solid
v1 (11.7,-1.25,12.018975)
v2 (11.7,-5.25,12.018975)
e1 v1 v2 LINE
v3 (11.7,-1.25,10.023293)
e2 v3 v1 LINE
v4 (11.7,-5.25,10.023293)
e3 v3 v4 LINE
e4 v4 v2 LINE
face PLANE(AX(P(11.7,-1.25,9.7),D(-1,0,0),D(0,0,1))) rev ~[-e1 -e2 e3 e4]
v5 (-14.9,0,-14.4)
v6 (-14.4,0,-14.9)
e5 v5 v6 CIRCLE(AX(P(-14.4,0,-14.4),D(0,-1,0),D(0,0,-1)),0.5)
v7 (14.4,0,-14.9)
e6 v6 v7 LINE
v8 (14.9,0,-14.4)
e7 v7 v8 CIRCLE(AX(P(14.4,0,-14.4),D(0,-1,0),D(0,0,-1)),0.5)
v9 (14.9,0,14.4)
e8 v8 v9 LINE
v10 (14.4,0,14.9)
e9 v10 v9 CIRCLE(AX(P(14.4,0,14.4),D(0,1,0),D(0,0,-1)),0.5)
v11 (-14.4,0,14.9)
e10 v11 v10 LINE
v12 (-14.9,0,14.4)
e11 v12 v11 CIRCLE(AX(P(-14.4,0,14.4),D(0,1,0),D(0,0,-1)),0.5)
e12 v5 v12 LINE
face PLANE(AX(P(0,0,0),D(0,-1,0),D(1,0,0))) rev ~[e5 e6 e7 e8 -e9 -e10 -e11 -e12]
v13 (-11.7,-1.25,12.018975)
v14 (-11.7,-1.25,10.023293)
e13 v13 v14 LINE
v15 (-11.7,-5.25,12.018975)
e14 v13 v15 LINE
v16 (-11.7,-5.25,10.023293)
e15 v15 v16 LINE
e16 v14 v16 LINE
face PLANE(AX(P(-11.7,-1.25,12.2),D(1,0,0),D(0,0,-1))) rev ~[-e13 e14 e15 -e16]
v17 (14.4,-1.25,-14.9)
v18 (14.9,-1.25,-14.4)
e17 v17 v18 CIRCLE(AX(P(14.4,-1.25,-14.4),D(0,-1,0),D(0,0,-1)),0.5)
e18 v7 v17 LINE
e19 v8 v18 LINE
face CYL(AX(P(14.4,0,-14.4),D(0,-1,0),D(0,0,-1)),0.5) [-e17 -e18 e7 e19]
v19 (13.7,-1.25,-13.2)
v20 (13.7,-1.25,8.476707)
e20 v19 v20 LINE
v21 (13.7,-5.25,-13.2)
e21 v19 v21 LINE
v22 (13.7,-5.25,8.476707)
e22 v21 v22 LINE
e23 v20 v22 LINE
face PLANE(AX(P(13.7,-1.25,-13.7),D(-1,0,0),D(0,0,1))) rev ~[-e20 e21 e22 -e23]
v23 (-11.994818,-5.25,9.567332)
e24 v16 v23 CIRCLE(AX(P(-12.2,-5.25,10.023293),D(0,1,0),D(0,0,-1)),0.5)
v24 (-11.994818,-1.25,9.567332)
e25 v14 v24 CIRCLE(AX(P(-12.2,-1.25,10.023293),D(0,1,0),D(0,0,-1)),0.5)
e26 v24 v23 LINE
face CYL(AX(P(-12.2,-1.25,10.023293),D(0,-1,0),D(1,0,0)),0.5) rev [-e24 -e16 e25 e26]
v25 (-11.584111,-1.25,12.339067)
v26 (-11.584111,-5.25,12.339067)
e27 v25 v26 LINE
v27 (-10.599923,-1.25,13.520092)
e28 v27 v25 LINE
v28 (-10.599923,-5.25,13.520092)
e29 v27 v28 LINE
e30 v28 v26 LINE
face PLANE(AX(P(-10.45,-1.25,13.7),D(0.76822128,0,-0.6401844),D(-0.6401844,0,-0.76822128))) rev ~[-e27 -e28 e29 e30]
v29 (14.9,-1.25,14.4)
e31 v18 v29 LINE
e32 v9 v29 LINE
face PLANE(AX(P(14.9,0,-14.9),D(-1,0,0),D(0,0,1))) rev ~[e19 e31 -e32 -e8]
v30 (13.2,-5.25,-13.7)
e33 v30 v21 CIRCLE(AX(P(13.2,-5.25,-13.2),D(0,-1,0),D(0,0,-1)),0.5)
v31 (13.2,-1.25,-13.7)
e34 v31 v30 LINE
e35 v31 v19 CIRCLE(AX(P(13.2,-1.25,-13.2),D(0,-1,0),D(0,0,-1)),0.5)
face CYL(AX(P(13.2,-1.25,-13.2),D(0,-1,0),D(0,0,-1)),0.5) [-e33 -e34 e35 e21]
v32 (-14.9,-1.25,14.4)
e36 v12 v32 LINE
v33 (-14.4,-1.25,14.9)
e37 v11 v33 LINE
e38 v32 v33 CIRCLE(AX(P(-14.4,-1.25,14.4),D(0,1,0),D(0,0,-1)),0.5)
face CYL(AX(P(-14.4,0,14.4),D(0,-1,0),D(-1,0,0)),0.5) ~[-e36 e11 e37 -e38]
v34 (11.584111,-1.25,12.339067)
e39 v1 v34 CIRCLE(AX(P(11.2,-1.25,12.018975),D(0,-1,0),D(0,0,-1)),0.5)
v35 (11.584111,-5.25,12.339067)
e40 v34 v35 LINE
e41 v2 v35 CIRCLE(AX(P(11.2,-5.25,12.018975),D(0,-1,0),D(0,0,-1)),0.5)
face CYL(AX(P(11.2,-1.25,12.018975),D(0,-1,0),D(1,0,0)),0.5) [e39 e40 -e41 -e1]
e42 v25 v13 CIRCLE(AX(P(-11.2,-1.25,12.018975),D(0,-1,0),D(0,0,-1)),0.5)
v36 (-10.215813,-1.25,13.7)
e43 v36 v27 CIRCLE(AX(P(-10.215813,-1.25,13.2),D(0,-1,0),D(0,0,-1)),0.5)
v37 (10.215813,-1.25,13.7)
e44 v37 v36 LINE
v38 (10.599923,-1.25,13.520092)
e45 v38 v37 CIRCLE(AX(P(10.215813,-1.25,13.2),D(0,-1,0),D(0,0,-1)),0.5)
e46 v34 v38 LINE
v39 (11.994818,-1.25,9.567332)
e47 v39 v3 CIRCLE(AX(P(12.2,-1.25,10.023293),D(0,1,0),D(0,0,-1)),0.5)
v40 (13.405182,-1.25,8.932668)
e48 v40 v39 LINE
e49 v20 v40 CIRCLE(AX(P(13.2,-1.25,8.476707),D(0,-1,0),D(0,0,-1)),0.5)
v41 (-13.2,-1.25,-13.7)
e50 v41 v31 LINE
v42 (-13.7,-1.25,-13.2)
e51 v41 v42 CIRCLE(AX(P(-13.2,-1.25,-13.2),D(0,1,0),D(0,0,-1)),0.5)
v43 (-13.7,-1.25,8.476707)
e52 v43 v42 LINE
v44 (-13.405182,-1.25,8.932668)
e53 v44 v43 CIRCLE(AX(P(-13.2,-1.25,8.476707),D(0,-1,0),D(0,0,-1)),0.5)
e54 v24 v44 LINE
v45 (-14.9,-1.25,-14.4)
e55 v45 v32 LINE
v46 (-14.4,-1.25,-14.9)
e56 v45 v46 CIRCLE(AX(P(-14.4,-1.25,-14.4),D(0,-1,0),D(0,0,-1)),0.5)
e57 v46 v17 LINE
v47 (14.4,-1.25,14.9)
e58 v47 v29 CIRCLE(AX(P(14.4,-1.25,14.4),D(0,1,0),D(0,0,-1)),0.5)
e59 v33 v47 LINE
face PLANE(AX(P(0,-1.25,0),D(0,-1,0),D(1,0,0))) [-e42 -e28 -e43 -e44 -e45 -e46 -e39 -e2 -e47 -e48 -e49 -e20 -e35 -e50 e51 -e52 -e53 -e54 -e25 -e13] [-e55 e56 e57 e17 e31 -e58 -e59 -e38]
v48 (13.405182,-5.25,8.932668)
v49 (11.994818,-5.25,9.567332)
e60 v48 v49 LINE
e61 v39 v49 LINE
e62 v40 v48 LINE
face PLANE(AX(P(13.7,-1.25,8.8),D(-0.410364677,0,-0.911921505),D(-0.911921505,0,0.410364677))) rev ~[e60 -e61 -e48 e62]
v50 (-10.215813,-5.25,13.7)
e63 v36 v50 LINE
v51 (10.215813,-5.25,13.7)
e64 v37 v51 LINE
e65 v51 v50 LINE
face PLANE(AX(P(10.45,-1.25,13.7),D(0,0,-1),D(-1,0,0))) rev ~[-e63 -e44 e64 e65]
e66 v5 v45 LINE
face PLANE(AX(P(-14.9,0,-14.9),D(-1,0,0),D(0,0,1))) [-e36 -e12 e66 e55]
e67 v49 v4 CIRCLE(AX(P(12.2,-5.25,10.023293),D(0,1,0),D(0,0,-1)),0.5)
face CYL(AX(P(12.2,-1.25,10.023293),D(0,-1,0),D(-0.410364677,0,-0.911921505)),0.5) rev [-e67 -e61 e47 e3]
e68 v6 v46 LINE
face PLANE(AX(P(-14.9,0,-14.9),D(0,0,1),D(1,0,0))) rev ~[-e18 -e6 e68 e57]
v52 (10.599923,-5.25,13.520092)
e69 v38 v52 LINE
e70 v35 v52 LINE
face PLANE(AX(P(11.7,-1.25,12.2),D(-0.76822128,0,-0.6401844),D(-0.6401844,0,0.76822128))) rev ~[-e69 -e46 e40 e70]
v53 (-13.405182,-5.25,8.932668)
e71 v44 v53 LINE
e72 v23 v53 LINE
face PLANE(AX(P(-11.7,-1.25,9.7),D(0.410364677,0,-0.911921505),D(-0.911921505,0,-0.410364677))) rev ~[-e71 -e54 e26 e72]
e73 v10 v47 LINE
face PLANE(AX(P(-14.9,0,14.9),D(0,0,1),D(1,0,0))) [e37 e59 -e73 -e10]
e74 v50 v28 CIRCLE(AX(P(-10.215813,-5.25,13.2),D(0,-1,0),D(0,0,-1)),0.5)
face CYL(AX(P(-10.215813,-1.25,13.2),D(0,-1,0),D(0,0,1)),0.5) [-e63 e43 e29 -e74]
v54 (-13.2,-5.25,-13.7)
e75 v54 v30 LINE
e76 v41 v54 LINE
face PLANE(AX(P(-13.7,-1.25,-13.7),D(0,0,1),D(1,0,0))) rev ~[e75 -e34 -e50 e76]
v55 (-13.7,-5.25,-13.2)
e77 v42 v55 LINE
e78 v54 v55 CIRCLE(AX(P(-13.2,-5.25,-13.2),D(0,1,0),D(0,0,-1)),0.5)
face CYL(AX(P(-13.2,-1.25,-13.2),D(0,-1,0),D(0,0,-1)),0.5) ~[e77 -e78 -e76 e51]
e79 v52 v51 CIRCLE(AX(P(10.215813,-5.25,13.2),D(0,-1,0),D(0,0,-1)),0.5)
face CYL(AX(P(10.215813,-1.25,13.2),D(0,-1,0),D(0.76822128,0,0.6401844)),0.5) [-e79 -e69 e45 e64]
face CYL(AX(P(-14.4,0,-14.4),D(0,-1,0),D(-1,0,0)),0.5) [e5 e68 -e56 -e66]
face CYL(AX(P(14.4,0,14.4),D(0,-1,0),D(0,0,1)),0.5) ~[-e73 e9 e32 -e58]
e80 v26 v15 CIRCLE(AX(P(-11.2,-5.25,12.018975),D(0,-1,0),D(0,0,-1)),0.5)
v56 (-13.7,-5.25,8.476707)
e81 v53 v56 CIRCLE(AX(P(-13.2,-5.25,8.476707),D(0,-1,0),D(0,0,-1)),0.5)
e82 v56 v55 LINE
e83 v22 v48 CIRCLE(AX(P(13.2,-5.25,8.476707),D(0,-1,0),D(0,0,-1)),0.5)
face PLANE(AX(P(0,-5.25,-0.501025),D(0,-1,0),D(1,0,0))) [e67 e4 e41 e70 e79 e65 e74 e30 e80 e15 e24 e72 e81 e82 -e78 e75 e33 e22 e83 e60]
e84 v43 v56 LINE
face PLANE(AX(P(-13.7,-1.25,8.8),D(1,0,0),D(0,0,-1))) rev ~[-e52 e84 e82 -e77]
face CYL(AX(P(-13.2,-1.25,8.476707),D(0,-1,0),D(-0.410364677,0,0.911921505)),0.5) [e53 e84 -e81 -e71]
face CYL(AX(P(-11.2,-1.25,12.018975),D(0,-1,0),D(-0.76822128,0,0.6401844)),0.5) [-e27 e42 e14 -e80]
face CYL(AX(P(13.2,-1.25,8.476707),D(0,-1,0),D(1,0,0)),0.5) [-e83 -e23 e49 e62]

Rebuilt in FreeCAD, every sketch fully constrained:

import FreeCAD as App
import Part
import Sketcher
Q = App.Units.Quantity


def edges_at(feature, points):
    """Names of the edges that pass closest to the given points."""
    edges = feature.Shape.Edges
    near = lambda p: min(range(len(edges)), key=lambda i: edges[i].distToShape(Part.Vertex(*p))[0])
    return sorted({f"Edge{near(p) + 1}" for p in points})


def add_polygon(sketch, points):
    """Adds a closed chain of lines whose ends are joined by coincident constraints."""
    first, n = sketch.GeometryCount, len(points)
    for a, b in zip(points, points[1:] + points[:1]):
        sketch.addGeometry(Part.LineSegment(App.Vector(*a, 0), App.Vector(*b, 0)), False)
    for i in range(n):
        sketch.addConstraint(Sketcher.Constraint("Coincident", first + i, 2, first + (i + 1) % n, 1))

doc = App.newDocument("Part")
body = doc.addObject("PartDesign::Body", "Body")

sketch1 = body.newObject("Sketcher::SketchObject", "Sketch")
sketch1.AttachmentSupport = (doc.getObject("XZ_Plane"), [""])
sketch1.MapMode = "FlatFace"
add_polygon(sketch1, [(-15, 15), (-15, -15), (15, -15), (15, 15)])
sketch1.addConstraint(Sketcher.Constraint("Vertical", 0))
sketch1.addConstraint(Sketcher.Constraint("Horizontal", 1))
sketch1.addConstraint(Sketcher.Constraint("Vertical", 2))
sketch1.addConstraint(Sketcher.Constraint("Horizontal", 3))
sketch1.addConstraint(Sketcher.Constraint("Symmetric", 0, 2, 2, 2, -1, 1))
sketch1.addConstraint(Sketcher.Constraint("Equal", 3, 0))
sketch1.addConstraint(Sketcher.Constraint("DistanceX", 1, 1, 1, 2, Q("29.8 mm")))
pad1 = body.newObject("PartDesign::Pad", "Pad")
pad1.Profile = sketch1
pad1.Length = 1.25

sketch2 = body.newObject("Sketcher::SketchObject", "Sketch001")
sketch2.AttachmentSupport = (doc.getObject("XZ_Plane"), [""])
sketch2.MapMode = "FlatFace"
sketch2.AttachmentOffset = App.Placement(App.Vector(0, 0, 1.25), App.Rotation())
add_polygon(sketch2, [(-13.7, -13.7), (13.7, -13.7), (13.7, 8.8), (11.7, 9.7), (11.7, 12.2), (10.4, 13.7), (-10.4, 13.7), (-11.7, 12.2), (-11.7, 9.7), (-13.7, 8.8)])
sketch2.addConstraint(Sketcher.Constraint("Horizontal", 0))
sketch2.addConstraint(Sketcher.Constraint("Vertical", 1))
sketch2.addConstraint(Sketcher.Constraint("Vertical", 3))
sketch2.addConstraint(Sketcher.Constraint("Horizontal", 5))
sketch2.addConstraint(Sketcher.Constraint("Vertical", 7))
sketch2.addConstraint(Sketcher.Constraint("Vertical", 9))
sketch2.addConstraint(Sketcher.Constraint("Symmetric", 3, 2, 6, 2, -2))
sketch2.addConstraint(Sketcher.Constraint("Symmetric", 1, 2, 8, 2, -2))
sketch2.addConstraint(Sketcher.Constraint("Horizontal", 2, 2, 7, 2))
sketch2.addConstraint(Sketcher.Constraint("Equal", 4, 6))
sketch2.addConstraint(Sketcher.Constraint("DistanceX", 0, 1, 0, 2, Q("27.4 mm")))
sketch2.addConstraint(Sketcher.Constraint("DistanceX", 5, 2, 5, 1, Q("20.9 mm")))
sketch2.addConstraint(Sketcher.Constraint("DistanceY", 1, 1, 1, 2, Q("22.5 mm")))
sketch2.addConstraint(Sketcher.Constraint("DistanceY", 3, 1, 3, 2, Q("2.5 mm")))
sketch2.addConstraint(Sketcher.Constraint("DistanceX", 2, 2, 1, 2, Q("2 mm")))
sketch2.addConstraint(Sketcher.Constraint("DistanceY", 2, 2, 4, 2, Q("4 mm")))
sketch2.addConstraint(Sketcher.Constraint("DistanceY", 0, 2, -1, 1, Q("13.7 mm")))
sketch2.addConstraint(Sketcher.Constraint("DistanceY", -1, 1, 2, 2, Q("9.7 mm")))
pad2 = body.newObject("PartDesign::Pad", "Pad001")
pad2.Profile = sketch2
pad2.Length = 4
doc.recompute()

fillet = body.newObject("PartDesign::Fillet", "Fillet")
fillet.Base = (pad2, edges_at(pad2, [
    (-14.9, -0.625, 14.9),
    (-14.9, -0.625, -14.9),
    (-11.7, -3.25, 12.2),
    (-10.45, -3.25, 13.7),
    (-11.7, -3.25, 9.7),
    (-13.7, -3.25, 8.8),
    (-13.7, -3.25, -13.7),
    (14.9, -0.625, 14.9),
    (14.9, -0.625, -14.9),
    (13.7, -3.25, -13.7),
    (13.7, -3.25, 8.8),
    (11.7, -3.25, 9.7),
    (11.7, -3.25, 12.2),
    (10.45, -3.25, 13.7),
]))
fillet.Radius = 0.5

doc.recompute()
